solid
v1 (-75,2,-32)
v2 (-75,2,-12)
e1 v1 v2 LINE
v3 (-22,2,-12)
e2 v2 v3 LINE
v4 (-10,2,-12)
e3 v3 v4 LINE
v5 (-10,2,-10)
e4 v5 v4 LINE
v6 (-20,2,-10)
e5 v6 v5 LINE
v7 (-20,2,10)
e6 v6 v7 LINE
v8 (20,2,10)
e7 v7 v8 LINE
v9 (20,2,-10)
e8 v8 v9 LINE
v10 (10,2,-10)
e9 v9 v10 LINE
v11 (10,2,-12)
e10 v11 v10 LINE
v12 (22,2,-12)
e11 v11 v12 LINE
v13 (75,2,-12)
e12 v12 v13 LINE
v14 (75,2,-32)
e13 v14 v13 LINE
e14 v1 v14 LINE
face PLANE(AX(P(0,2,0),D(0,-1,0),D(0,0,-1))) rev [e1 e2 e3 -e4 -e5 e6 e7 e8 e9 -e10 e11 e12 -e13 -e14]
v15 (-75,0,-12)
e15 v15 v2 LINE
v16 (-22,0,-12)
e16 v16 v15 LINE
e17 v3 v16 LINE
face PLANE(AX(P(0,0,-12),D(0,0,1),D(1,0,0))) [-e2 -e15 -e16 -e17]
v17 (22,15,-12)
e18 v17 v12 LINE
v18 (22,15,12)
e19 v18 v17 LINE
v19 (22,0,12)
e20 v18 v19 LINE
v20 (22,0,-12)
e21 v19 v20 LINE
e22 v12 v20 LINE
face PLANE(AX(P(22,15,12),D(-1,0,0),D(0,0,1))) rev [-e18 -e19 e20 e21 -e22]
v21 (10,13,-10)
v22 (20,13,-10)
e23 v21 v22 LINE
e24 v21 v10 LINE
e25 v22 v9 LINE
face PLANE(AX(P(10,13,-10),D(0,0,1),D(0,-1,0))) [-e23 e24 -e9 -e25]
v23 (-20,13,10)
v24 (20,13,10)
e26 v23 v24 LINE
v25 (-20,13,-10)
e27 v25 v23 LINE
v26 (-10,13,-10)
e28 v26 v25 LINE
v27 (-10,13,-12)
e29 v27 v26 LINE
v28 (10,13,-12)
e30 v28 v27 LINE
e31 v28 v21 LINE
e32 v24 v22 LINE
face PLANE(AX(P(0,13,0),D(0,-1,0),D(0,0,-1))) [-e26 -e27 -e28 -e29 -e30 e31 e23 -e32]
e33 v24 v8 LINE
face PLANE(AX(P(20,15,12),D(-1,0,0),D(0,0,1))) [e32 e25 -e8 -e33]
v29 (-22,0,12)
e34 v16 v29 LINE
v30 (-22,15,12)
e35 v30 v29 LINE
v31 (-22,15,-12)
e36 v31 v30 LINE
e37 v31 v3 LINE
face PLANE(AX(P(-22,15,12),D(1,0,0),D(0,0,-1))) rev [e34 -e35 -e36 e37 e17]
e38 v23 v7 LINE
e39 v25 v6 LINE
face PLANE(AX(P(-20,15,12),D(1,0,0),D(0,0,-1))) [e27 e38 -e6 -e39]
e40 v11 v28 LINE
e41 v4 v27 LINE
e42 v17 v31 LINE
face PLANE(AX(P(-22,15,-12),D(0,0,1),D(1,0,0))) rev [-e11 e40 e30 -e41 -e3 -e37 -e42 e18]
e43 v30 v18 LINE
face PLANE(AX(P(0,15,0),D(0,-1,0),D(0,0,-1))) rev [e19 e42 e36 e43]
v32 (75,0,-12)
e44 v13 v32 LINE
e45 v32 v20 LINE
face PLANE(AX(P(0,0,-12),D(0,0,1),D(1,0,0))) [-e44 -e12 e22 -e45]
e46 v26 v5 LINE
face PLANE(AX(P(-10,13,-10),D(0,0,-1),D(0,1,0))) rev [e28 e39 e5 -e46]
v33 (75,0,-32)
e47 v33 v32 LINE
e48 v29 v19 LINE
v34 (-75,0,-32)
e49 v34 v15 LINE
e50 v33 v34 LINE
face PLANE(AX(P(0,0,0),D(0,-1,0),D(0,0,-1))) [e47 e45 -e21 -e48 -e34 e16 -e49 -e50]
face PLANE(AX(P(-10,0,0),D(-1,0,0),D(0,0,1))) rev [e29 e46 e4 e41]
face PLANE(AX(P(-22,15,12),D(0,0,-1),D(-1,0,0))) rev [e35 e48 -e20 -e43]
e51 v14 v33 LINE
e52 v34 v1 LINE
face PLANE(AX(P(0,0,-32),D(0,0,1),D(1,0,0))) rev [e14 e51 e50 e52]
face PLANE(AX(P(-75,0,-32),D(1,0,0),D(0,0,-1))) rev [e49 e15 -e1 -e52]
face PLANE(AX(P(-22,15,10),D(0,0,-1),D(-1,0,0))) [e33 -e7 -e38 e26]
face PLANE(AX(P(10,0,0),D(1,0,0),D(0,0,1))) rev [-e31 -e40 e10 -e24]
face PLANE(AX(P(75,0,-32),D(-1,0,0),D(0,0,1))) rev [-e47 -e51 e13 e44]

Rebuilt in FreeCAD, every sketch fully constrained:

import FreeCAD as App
import Part
import Sketcher
from FreeCAD import Vector


def faces_at(feature, points):
    """Names of the faces that lie closest to the given points."""
    faces = feature.Shape.Faces
    near = lambda p: min(range(len(faces)), key=lambda i: faces[i].distToShape(Part.Vertex(*p))[0])
    return sorted({f"Face{near(p) + 1}" for p in points})


def add_polygon(sketch, points):
    """Adds a closed chain of lines whose ends are joined by coincident constraints."""
    first, n = sketch.GeometryCount, len(points)
    for a, b in zip(points, points[1:] + points[:1]):
        sketch.addGeometry(Part.LineSegment(App.Vector(*a, 0), App.Vector(*b, 0)), False)
    for i in range(n):
        sketch.addConstraint(Sketcher.Constraint("Coincident", first + i, 2, first + (i + 1) % n, 1))

doc = App.newDocument("Part")
body = doc.addObject("PartDesign::Body", "Body")

sketch1 = doc.addObject("Sketcher::SketchObject", "Sketch")
body.addObject(sketch1)
sketch1.AttachmentSupport = (doc.XZ_Plane, [""])
sketch1.MapMode = "FlatFace"
add_polygon(sketch1, [(-22, -12), (-22, 12), (22, 12), (22, -12)])
sketch1.addConstraint([
    Sketcher.Constraint("Vertical", 0),
    Sketcher.Constraint("Horizontal", 1),
    Sketcher.Constraint("Vertical", 2),
    Sketcher.Constraint("Horizontal", 3),
    Sketcher.Constraint("Symmetric", 0, 2, 2, 2, -1, 1),
    Sketcher.Constraint("DistanceX", 1, 1, 1, 2, 44.0),
    Sketcher.Constraint("DistanceY", 0, 1, 0, 2, 24.0),
])
pad1 = doc.addObject("PartDesign::Pad", "Pad")
body.addObject(pad1)
pad1.Profile = sketch1
pad1.Length = 15
pad1.Reversed = True
doc.recompute()

thickness = doc.addObject("PartDesign::Thickness", "Thickness")
body.addObject(thickness)
thickness.Base = (pad1, faces_at(pad1, [(0, 7.5, -12)]))
thickness.Value = 2
thickness.Reversed = True
thickness.Join = "Intersection"

sketch2 = doc.addObject("Sketcher::SketchObject", "Sketch001")
body.addObject(sketch2)
sketch2.AttachmentSupport = (doc.YZ_Plane, [""])
sketch2.MapMode = "FlatFace"
sketch2.AttachmentOffset = App.Placement(Vector(0, 0, -20), App.Rotation())
add_polygon(sketch2, [(13, -10), (2, -10), (2, -12), (13, -12)])
sketch2.addConstraint([
    Sketcher.Constraint("Horizontal", 0),
    Sketcher.Constraint("Vertical", 1),
    Sketcher.Constraint("Horizontal", 2),
    Sketcher.Constraint("Vertical", 3),
    Sketcher.Constraint("DistanceY", 1, 2, 1, 1, 2.0),
    Sketcher.Constraint("DistanceY", 0, 2, -1, 1, 10.0),
    Sketcher.Constraint("DistanceX", -1, 1, 2, 2, 13.0),
    Sketcher.Constraint("DistanceX", 0, 2, 0, 1, 11.017608),
])
pad2 = doc.addObject("PartDesign::Pad", "Pad001")
body.addObject(pad2)
pad2.Profile = sketch2
pad2.Length = 10
doc.recompute()

mirrored = doc.addObject("PartDesign::Mirrored", "Mirrored")
body.addObject(mirrored)
mirrored.Originals = [pad2]
mirrored.MirrorPlane = (doc.YZ_Plane, [""])
body.Tip = mirrored

sketch3 = doc.addObject("Sketcher::SketchObject", "Sketch002")
body.addObject(sketch3)
sketch3.AttachmentSupport = (doc.XY_Plane, [""])
sketch3.MapMode = "FlatFace"
sketch3.AttachmentOffset = App.Placement(Vector(0, 0, -12), App.Rotation())
add_polygon(sketch3, [(75, 2), (75, 0), (-75, 0), (-75, 2)])
sketch3.addConstraint([
    Sketcher.Constraint("Vertical", 0),
    Sketcher.Constraint("Horizontal", 1),
    Sketcher.Constraint("Vertical", 2),
    Sketcher.Constraint("Horizontal", 3),
    Sketcher.Constraint("Symmetric", 0, 2, 1, 2, -1, 1),
    Sketcher.Constraint("DistanceX", 1, 2, 1, 1, 150.0),
    Sketcher.Constraint("DistanceY", 0, 2, 0, 1, 2.0),
])
pad3 = doc.addObject("PartDesign::Pad", "Pad002")
body.addObject(pad3)
pad3.Profile = sketch3
pad3.Length = 20
pad3.Reversed = True

doc.recompute()
